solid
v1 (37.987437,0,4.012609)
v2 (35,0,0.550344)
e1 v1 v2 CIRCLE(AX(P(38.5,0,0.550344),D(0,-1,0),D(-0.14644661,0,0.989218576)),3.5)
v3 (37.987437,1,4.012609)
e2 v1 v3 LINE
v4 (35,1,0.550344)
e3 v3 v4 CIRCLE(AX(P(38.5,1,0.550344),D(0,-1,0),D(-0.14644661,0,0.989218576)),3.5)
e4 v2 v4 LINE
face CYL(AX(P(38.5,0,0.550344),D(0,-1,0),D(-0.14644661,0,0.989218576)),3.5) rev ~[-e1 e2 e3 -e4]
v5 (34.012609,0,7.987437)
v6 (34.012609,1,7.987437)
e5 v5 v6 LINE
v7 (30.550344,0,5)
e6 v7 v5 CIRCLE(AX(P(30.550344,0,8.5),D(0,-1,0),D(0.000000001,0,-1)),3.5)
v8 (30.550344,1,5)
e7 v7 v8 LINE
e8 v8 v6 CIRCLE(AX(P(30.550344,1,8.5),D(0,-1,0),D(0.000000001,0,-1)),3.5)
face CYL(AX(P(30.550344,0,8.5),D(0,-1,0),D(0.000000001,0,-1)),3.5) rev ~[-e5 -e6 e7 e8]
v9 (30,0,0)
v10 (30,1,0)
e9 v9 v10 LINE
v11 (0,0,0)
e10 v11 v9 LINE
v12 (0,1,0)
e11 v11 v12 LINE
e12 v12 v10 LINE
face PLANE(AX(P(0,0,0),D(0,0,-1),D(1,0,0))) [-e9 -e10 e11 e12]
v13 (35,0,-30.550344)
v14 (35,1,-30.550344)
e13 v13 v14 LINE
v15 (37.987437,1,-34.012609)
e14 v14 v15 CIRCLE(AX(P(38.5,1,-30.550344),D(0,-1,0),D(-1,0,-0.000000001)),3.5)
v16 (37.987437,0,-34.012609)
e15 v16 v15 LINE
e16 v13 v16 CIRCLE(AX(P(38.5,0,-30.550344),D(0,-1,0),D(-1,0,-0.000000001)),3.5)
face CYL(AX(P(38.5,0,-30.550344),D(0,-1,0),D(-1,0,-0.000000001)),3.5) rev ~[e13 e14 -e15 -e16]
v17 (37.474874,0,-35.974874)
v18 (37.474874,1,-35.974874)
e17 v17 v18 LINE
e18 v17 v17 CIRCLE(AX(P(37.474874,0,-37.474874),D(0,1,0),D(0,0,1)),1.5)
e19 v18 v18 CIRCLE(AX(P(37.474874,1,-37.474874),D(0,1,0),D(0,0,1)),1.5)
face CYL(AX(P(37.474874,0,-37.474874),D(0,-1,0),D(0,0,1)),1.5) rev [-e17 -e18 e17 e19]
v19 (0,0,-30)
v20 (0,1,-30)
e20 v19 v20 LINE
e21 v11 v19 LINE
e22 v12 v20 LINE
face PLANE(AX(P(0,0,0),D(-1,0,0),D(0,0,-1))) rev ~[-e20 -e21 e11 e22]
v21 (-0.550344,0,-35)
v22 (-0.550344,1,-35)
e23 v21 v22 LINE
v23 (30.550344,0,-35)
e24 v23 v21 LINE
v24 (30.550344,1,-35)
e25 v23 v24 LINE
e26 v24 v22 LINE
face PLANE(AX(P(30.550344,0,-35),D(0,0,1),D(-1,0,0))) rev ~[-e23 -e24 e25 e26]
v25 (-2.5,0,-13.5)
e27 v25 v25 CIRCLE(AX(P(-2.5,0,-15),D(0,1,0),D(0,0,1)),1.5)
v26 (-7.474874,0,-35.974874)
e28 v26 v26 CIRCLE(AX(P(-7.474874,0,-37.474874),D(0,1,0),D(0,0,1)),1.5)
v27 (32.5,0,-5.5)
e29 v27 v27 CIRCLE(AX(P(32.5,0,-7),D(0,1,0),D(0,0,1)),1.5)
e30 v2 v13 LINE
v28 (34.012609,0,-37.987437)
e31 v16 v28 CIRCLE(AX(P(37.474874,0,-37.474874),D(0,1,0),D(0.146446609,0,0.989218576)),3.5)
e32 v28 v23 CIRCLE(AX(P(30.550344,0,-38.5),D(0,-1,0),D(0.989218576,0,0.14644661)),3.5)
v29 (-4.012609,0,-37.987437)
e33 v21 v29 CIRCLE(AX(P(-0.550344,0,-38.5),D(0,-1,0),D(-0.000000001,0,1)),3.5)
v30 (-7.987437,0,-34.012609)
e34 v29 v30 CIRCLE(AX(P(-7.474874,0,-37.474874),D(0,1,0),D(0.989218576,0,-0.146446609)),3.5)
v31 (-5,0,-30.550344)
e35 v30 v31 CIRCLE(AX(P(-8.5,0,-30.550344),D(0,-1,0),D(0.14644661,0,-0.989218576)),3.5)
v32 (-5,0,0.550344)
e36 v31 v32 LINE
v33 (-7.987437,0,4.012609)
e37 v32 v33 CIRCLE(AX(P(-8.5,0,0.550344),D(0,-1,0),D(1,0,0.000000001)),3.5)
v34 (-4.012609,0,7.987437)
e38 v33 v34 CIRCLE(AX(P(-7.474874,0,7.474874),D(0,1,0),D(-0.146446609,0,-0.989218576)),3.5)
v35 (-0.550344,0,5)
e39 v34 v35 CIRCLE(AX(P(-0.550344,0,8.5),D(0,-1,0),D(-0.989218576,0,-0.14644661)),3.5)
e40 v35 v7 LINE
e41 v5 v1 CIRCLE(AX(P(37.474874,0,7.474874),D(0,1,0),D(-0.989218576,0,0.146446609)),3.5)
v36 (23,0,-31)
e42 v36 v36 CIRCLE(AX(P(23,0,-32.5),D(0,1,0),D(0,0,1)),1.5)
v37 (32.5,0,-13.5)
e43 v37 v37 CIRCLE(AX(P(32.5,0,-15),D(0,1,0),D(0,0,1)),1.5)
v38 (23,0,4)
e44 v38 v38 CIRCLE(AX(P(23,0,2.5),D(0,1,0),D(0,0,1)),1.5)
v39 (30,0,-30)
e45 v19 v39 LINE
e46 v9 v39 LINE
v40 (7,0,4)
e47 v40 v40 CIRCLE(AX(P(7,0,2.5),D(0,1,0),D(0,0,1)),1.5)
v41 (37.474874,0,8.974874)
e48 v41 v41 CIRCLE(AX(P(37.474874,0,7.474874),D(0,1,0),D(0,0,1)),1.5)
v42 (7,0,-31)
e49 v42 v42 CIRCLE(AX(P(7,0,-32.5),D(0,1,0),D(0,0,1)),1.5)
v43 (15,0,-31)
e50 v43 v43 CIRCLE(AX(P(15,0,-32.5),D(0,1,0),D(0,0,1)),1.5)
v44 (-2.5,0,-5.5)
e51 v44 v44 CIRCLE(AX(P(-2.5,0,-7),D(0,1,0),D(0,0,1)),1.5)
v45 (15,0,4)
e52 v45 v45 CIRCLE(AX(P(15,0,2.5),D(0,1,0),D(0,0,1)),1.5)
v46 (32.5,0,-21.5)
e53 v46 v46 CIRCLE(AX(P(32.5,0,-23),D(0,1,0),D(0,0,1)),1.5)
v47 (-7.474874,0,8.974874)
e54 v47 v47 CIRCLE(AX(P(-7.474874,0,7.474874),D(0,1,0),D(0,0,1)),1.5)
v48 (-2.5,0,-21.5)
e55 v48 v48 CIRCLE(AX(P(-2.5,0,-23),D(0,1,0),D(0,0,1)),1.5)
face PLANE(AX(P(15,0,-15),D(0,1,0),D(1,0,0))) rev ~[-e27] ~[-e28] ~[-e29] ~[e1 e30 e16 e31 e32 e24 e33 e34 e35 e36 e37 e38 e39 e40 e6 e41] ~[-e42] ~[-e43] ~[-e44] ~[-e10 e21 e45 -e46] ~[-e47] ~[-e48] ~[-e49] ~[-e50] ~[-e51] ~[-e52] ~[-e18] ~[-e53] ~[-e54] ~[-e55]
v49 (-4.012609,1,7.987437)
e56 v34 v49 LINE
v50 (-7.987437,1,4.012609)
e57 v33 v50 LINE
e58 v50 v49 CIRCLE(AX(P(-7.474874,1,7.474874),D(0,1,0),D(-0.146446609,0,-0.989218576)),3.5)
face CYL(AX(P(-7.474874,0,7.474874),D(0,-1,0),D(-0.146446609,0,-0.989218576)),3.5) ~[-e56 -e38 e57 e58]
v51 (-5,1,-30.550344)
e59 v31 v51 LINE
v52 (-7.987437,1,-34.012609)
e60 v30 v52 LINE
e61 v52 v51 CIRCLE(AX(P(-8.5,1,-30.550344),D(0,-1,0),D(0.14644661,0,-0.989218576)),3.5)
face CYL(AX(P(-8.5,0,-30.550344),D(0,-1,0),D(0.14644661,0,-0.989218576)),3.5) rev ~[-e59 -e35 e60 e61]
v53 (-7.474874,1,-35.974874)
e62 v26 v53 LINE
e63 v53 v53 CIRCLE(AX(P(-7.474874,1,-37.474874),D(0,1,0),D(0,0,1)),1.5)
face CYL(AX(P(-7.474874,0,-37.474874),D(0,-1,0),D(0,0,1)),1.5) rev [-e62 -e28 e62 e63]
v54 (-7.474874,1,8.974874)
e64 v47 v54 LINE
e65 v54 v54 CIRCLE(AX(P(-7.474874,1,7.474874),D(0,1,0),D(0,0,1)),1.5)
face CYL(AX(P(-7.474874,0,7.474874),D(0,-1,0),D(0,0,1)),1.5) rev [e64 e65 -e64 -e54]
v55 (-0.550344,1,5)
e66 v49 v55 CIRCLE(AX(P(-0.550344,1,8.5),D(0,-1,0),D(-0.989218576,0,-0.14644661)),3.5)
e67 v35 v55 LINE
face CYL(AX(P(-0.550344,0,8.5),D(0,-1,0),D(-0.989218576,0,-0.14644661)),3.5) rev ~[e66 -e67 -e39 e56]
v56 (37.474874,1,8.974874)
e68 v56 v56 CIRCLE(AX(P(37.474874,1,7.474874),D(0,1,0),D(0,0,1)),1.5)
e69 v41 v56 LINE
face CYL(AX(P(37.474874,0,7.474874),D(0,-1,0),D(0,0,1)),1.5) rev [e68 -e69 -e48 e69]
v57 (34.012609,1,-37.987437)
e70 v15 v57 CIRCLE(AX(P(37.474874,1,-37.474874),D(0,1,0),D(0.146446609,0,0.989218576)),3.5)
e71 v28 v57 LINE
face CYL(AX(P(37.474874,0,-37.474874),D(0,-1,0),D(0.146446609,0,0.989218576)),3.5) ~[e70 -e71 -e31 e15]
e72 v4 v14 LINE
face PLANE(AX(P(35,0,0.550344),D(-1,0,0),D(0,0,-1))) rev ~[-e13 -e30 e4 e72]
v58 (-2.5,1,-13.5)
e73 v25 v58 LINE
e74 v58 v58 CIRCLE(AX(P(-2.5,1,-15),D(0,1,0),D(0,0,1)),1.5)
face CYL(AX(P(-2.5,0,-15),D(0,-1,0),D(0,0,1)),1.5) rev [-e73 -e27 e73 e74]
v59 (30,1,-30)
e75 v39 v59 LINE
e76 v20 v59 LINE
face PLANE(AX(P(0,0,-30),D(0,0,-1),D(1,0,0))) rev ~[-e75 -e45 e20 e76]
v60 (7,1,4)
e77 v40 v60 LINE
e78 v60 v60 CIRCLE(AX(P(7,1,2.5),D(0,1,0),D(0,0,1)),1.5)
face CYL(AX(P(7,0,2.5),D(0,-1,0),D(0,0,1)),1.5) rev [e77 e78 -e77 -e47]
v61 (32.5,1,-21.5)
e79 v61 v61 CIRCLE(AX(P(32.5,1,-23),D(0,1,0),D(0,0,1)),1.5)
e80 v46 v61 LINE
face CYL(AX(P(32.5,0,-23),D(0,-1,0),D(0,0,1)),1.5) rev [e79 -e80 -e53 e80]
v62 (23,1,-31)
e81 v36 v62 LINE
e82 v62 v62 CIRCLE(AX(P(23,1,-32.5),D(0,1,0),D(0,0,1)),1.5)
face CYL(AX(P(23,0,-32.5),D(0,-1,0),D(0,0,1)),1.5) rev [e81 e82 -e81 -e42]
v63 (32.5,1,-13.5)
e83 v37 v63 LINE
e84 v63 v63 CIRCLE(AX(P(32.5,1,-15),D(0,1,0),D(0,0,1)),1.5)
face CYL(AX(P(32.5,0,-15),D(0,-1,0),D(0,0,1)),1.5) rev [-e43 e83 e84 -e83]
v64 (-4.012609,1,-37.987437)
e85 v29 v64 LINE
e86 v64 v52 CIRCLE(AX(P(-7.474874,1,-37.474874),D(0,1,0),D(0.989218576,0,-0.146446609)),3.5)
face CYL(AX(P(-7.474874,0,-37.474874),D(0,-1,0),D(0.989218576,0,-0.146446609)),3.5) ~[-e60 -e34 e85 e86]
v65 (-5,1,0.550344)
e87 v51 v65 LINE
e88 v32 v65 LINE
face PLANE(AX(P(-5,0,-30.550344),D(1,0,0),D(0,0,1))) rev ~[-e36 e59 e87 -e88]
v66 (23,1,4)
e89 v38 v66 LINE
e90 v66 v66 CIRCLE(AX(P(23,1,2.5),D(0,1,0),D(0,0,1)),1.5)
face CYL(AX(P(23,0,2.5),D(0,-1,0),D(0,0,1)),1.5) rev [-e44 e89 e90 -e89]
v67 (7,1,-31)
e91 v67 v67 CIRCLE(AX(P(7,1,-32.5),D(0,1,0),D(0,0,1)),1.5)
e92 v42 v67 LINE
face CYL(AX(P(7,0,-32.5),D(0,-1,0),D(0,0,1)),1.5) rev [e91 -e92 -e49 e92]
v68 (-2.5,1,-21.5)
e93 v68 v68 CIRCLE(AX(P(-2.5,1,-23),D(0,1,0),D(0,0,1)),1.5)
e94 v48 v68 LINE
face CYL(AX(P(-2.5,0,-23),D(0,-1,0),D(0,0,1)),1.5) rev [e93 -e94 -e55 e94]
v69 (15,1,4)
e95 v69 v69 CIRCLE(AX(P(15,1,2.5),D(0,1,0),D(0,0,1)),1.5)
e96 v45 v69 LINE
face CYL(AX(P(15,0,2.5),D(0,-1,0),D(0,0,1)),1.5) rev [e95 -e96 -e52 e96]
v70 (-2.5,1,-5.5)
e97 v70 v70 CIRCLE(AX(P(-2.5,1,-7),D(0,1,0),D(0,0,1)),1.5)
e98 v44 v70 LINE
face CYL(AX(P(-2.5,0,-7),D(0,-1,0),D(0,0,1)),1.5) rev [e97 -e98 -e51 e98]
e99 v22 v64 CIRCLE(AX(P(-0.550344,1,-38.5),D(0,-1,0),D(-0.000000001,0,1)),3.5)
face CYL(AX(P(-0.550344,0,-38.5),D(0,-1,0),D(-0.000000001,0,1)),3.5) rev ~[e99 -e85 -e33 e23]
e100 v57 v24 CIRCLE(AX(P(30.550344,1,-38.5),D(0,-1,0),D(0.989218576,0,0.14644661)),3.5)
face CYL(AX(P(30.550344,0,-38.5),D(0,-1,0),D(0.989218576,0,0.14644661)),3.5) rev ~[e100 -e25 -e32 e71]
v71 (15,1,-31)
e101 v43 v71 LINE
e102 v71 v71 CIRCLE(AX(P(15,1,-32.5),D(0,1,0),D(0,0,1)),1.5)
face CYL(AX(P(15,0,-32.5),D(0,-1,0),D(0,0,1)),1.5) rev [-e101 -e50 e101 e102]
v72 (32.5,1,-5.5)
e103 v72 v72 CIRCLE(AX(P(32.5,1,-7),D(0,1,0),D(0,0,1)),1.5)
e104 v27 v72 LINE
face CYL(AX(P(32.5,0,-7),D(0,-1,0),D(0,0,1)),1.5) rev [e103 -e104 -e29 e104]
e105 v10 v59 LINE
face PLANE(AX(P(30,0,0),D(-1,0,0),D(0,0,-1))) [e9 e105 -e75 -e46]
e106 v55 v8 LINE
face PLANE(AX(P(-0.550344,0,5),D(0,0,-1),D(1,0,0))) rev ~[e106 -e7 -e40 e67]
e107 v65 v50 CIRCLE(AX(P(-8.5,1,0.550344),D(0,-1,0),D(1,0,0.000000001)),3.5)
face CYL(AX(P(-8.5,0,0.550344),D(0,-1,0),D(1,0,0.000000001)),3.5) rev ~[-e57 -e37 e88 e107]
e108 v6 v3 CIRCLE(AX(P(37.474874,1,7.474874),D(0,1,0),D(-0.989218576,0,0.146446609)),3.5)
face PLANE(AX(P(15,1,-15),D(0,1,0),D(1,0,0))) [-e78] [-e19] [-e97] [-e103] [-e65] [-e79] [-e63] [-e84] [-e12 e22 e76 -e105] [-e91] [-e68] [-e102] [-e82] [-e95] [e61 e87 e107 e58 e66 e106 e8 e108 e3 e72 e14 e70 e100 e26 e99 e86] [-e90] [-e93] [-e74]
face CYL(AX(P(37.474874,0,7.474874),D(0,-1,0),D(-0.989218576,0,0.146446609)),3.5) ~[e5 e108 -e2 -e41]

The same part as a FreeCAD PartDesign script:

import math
import FreeCAD as App
import Part
import Sketcher
Q = App.Units.Quantity


def add_polygon(sketch, points):
    """Adds a closed chain of lines whose ends are joined by coincident constraints."""
    first, n = sketch.GeometryCount, len(points)
    for a, b in zip(points, points[1:] + points[:1]):
        sketch.addGeometry(Part.LineSegment(App.Vector(*a, 0), App.Vector(*b, 0)), False)
    for i in range(n):
        sketch.addConstraint(Sketcher.Constraint("Coincident", first + i, 2, first + (i + 1) % n, 1))

doc = App.newDocument("Part")
body = doc.addObject("PartDesign::Body", "Body")

sketch1 = doc.addObject("Sketcher::SketchObject", "Sketch")
body.addObject(sketch1)
sketch1.AttachmentSupport = (doc.XZ_Plane, [""])
sketch1.MapMode = "FlatFace"
sketch1.addGeometry(Part.LineSegment(App.Vector(-5, -30.6, 0), App.Vector(-5, 0.6, 0)), False)
sketch1.addGeometry(Part.ArcOfCircle(Part.Circle(App.Vector(-8.5, 0.6, 0), App.Vector(0, 0, 1), 3.5), math.radians(0), math.radians(82)), False)
sketch1.addGeometry(Part.ArcOfCircle(Part.Circle(App.Vector(-7.5, 7.5, 0), App.Vector(0, 0, 1), 3.5), math.radians(8), math.radians(262)), False)
sketch1.addGeometry(Part.ArcOfCircle(Part.Circle(App.Vector(-0.6, 8.5, 0), App.Vector(0, 0, 1), 3.5), math.radians(-172), math.radians(-90)), False)
sketch1.addGeometry(Part.LineSegment(App.Vector(-0.6, 5, 0), App.Vector(30.6, 5, 0)), False)
sketch1.addGeometry(Part.ArcOfCircle(Part.Circle(App.Vector(30.6, 8.5, 0), App.Vector(0, 0, 1), 3.5), math.radians(-90), math.radians(-8)), False)
sketch1.addGeometry(Part.ArcOfCircle(Part.Circle(App.Vector(37.5, 7.5, 0), App.Vector(0, 0, 1), 3.5), math.radians(-82), math.radians(172)), False)
sketch1.addGeometry(Part.ArcOfCircle(Part.Circle(App.Vector(38.5, 0.6, 0), App.Vector(0, 0, 1), 3.5), math.radians(98), math.radians(180)), False)
sketch1.addGeometry(Part.LineSegment(App.Vector(35, 0.6, 0), App.Vector(35, -30.6, 0)), False)
sketch1.addGeometry(Part.ArcOfCircle(Part.Circle(App.Vector(38.5, -30.6, 0), App.Vector(0, 0, 1), 3.5), math.radians(-180), math.radians(-98)), False)
sketch1.addGeometry(Part.ArcOfCircle(Part.Circle(App.Vector(37.5, -37.5, 0), App.Vector(0, 0, 1), 3.5), math.radians(-172), math.radians(82)), False)
sketch1.addGeometry(Part.ArcOfCircle(Part.Circle(App.Vector(30.6, -38.5, 0), App.Vector(0, 0, 1), 3.5), math.radians(8), math.radians(90)), False)
sketch1.addGeometry(Part.LineSegment(App.Vector(30.6, -35, 0), App.Vector(-0.6, -35, 0)), False)
sketch1.addGeometry(Part.ArcOfCircle(Part.Circle(App.Vector(-0.6, -38.5, 0), App.Vector(0, 0, 1), 3.5), math.radians(90), math.radians(172)), False)
sketch1.addGeometry(Part.ArcOfCircle(Part.Circle(App.Vector(-7.5, -37.5, 0), App.Vector(0, 0, 1), 3.5), math.radians(98), math.radians(352)), False)
sketch1.addGeometry(Part.ArcOfCircle(Part.Circle(App.Vector(-8.5, -30.6, 0), App.Vector(0, 0, 1), 3.5), math.radians(-82), math.radians(0)), False)
sketch1.addGeometry(Part.Circle(App.Vector(-7.5, 7.5, 0), App.Vector(0, 0, 1), 1.5), False)
sketch1.addGeometry(Part.Circle(App.Vector(7, 2.5, 0), App.Vector(0, 0, 1), 1.5), False)
sketch1.addGeometry(Part.Circle(App.Vector(-2.5, -7, 0), App.Vector(0, 0, 1), 1.5), False)
sketch1.addGeometry(Part.Circle(App.Vector(15, 2.5, 0), App.Vector(0, 0, 1), 1.5), False)
sketch1.addGeometry(Part.Circle(App.Vector(23, 2.5, 0), App.Vector(0, 0, 1), 1.5), False)
sketch1.addGeometry(Part.Circle(App.Vector(37.5, 7.5, 0), App.Vector(0, 0, 1), 1.5), False)
sketch1.addGeometry(Part.Circle(App.Vector(32.5, -7, 0), App.Vector(0, 0, 1), 1.5), False)
sketch1.addGeometry(Part.Circle(App.Vector(-2.5, -15, 0), App.Vector(0, 0, 1), 1.5), False)
sketch1.addGeometry(Part.Circle(App.Vector(-2.5, -23, 0), App.Vector(0, 0, 1), 1.5), False)
sketch1.addGeometry(Part.Circle(App.Vector(-7.5, -37.5, 0), App.Vector(0, 0, 1), 1.5), False)
sketch1.addGeometry(Part.Circle(App.Vector(7, -32.5, 0), App.Vector(0, 0, 1), 1.5), False)
add_polygon(sketch1, [(30, 0), (0, 0), (0, -30), (30, -30)])
sketch1.addGeometry(Part.Circle(App.Vector(32.5, -15, 0), App.Vector(0, 0, 1), 1.5), False)
sketch1.addGeometry(Part.Circle(App.Vector(32.5, -23, 0), App.Vector(0, 0, 1), 1.5), False)
sketch1.addGeometry(Part.Circle(App.Vector(15, -32.5, 0), App.Vector(0, 0, 1), 1.5), False)
sketch1.addGeometry(Part.Circle(App.Vector(23, -32.5, 0), App.Vector(0, 0, 1), 1.5), False)
sketch1.addGeometry(Part.Circle(App.Vector(37.5, -37.5, 0), App.Vector(0, 0, 1), 1.5), False)
sketch1.addConstraint(Sketcher.Constraint("Tangent", 0, 2, 1, 1))
sketch1.addConstraint(Sketcher.Constraint("Tangent", 1, 2, 2, 2))
sketch1.addConstraint(Sketcher.Constraint("Tangent", 2, 1, 3, 1))
sketch1.addConstraint(Sketcher.Constraint("Tangent", 3, 2, 4, 1))
sketch1.addConstraint(Sketcher.Constraint("Tangent", 4, 2, 5, 1))
sketch1.addConstraint(Sketcher.Constraint("Tangent", 5, 2, 6, 2))
sketch1.addConstraint(Sketcher.Constraint("Tangent", 6, 1, 7, 1))
sketch1.addConstraint(Sketcher.Constraint("Tangent", 7, 2, 8, 1))
sketch1.addConstraint(Sketcher.Constraint("Tangent", 8, 2, 9, 1))
sketch1.addConstraint(Sketcher.Constraint("Tangent", 9, 2, 10, 2))
sketch1.addConstraint(Sketcher.Constraint("Tangent", 10, 1, 11, 1))
sketch1.addConstraint(Sketcher.Constraint("Tangent", 11, 2, 12, 1))
sketch1.addConstraint(Sketcher.Constraint("Tangent", 12, 2, 13, 1))
sketch1.addConstraint(Sketcher.Constraint("Tangent", 13, 2, 14, 2))
sketch1.addConstraint(Sketcher.Constraint("Tangent", 14, 1, 15, 1))
sketch1.addConstraint(Sketcher.Constraint("Tangent", 15, 2, 0, 1))
sketch1.addConstraint(Sketcher.Constraint("Vertical", 0))
sketch1.addConstraint(Sketcher.Constraint("Horizontal", 4))
sketch1.addConstraint(Sketcher.Constraint("Vertical", 8))
sketch1.addConstraint(Sketcher.Constraint("Horizontal", 12))
sketch1.addConstraint(Sketcher.Constraint("Horizontal", 27))
sketch1.addConstraint(Sketcher.Constraint("Vertical", 28))
sketch1.addConstraint(Sketcher.Constraint("Horizontal", 29))
sketch1.addConstraint(Sketcher.Constraint("Vertical", 30))
sketch1.addConstraint(Sketcher.Constraint("Coincident", 27, 2, -1, 1))
sketch1.addConstraint(Sketcher.Constraint("Coincident", 16, 3, 2, 3))
sketch1.addConstraint(Sketcher.Constraint("Coincident", 21, 3, 6, 3))
sketch1.addConstraint(Sketcher.Constraint("Coincident", 25, 3, 14, 3))
sketch1.addConstraint(Sketcher.Constraint("Coincident", 35, 3, 10, 3))
sketch1.addConstraint(Sketcher.Constraint("Equal", 1, 2))
sketch1.addConstraint(Sketcher.Constraint("Equal", 2, 3))
sketch1.addConstraint(Sketcher.Constraint("Equal", 3, 5))
sketch1.addConstraint(Sketcher.Constraint("Equal", 5, 6))
sketch1.addConstraint(Sketcher.Constraint("Equal", 6, 7))
sketch1.addConstraint(Sketcher.Constraint("Equal", 7, 9))
sketch1.addConstraint(Sketcher.Constraint("Equal", 9, 10))
sketch1.addConstraint(Sketcher.Constraint("Equal", 10, 11))
sketch1.addConstraint(Sketcher.Constraint("Equal", 11, 13))
sketch1.addConstraint(Sketcher.Constraint("Equal", 13, 14))
sketch1.addConstraint(Sketcher.Constraint("Equal", 14, 15))
sketch1.addConstraint(Sketcher.Constraint("Equal", 16, 17))
sketch1.addConstraint(Sketcher.Constraint("Equal", 17, 18))
sketch1.addConstraint(Sketcher.Constraint("Equal", 18, 19))
sketch1.addConstraint(Sketcher.Constraint("Equal", 19, 20))
sketch1.addConstraint(Sketcher.Constraint("Equal", 20, 21))
sketch1.addConstraint(Sketcher.Constraint("Equal", 21, 22))
sketch1.addConstraint(Sketcher.Constraint("Equal", 22, 23))
sketch1.addConstraint(Sketcher.Constraint("Equal", 23, 24))
sketch1.addConstraint(Sketcher.Constraint("Equal", 24, 25))
sketch1.addConstraint(Sketcher.Constraint("Equal", 25, 26))
sketch1.addConstraint(Sketcher.Constraint("Equal", 26, 31))
sketch1.addConstraint(Sketcher.Constraint("Equal", 31, 32))
sketch1.addConstraint(Sketcher.Constraint("Equal", 32, 33))
sketch1.addConstraint(Sketcher.Constraint("Equal", 33, 34))
sketch1.addConstraint(Sketcher.Constraint("Equal", 34, 35))
sketch1.addConstraint(Sketcher.Constraint("Horizontal", 2, 3, 6, 3))
sketch1.addConstraint(Sketcher.Constraint("Horizontal", 1, 3, 7, 3))
sketch1.addConstraint(Sketcher.Constraint("Horizontal", 10, 3, 14, 3))
sketch1.addConstraint(Sketcher.Constraint("Horizontal", 9, 3, 15, 3))
sketch1.addConstraint(Sketcher.Constraint("Horizontal", 17, 3, 19, 3))
sketch1.addConstraint(Sketcher.Constraint("Horizontal", 19, 3, 20, 3))
sketch1.addConstraint(Sketcher.Constraint("Horizontal", 18, 3, 22, 3))
sketch1.addConstraint(Sketcher.Constraint("Horizontal", 23, 3, 31, 3))
sketch1.addConstraint(Sketcher.Constraint("Horizontal", 24, 3, 32, 3))
sketch1.addConstraint(Sketcher.Constraint("Horizontal", 26, 3, 33, 3))
sketch1.addConstraint(Sketcher.Constraint("Horizontal", 33, 3, 34, 3))
sketch1.addConstraint(Sketcher.Constraint("Vertical", 6, 3, 10, 3))
sketch1.addConstraint(Sketcher.Constraint("Vertical", 5, 3, 11, 3))
sketch1.addConstraint(Sketcher.Constraint("Vertical", 18, 3, 23, 3))
sketch1.addConstraint(Sketcher.Constraint("Vertical", 23, 3, 24, 3))
sketch1.addConstraint(Sketcher.Constraint("Vertical", 17, 3, 26, 3))
sketch1.addConstraint(Sketcher.Constraint("Vertical", 22, 3, 31, 3))
sketch1.addConstraint(Sketcher.Constraint("Vertical", 31, 3, 32, 3))
sketch1.addConstraint(Sketcher.Constraint("Vertical", 19, 3, 33, 3))
sketch1.addConstraint(Sketcher.Constraint("Vertical", 20, 3, 34, 3))
sketch1.addConstraint(Sketcher.Constraint("Equal", 12, 0))
sketch1.addConstraint(Sketcher.Constraint("Equal", 29, 28))
sketch1.addConstraint(Sketcher.Constraint("Diameter", 16, Q("3 mm")))
sketch1.addConstraint(Sketcher.Constraint("Radius", 1, Q("3.5 mm")))
sketch1.addConstraint(Sketcher.Constraint("DistanceX", 27, 2, 27, 1, Q("30 mm")))
sketch1.addConstraint(Sketcher.Constraint("DistanceX", -1, 1, 17, 3, Q("7 mm")))
sketch1.addConstraint(Sketcher.Constraint("DistanceY", 18, 3, -1, 1, Q("7 mm")))
sketch1.addConstraint(Sketcher.Constraint("DistanceX", -1, 1, 19, 3, Q("15 mm")))
sketch1.addConstraint(Sketcher.Constraint("DistanceX", -1, 1, 20, 3, Q("23 mm")))
sketch1.addConstraint(Sketcher.Constraint("DistanceY", 23, 3, -1, 1, Q("15 mm")))
sketch1.addConstraint(Sketcher.Constraint("DistanceY", 24, 3, -1, 1, Q("23 mm")))
sketch1.addConstraint(Sketcher.Constraint("DistanceX", 0, 2, -1, 1, Q("5 mm")))
sketch1.addConstraint(Sketcher.Constraint("DistanceY", -1, 1, 3, 2, Q("5 mm")))
sketch1.addConstraint(Sketcher.Constraint("DistanceX", -1, 1, 7, 2, Q("35 mm")))
sketch1.addConstraint(Sketcher.Constraint("DistanceY", 11, 2, -1, 1, Q("35 mm")))
sketch1.addConstraint(Sketcher.Constraint("DistanceY", 17, 3, 3, 3, Q("6 mm")))
sketch1.addConstraint(Sketcher.Constraint("DistanceX", 1, 3, 18, 3, Q("6 mm")))
sketch1.addConstraint(Sketcher.Constraint("DistanceX", 22, 3, 7, 3, Q("6 mm")))
sketch1.addConstraint(Sketcher.Constraint("DistanceY", 13, 3, 26, 3, Q("6 mm")))
sketch1.addConstraint(Sketcher.Constraint("DistanceX", 4, 1, 4, 2, Q("31.100687 mm")))
pad1 = doc.addObject("PartDesign::Pad", "Pad")
body.addObject(pad1)
pad1.Profile = sketch1
pad1.Length = 1
pad1.Reversed = True

doc.recompute()
